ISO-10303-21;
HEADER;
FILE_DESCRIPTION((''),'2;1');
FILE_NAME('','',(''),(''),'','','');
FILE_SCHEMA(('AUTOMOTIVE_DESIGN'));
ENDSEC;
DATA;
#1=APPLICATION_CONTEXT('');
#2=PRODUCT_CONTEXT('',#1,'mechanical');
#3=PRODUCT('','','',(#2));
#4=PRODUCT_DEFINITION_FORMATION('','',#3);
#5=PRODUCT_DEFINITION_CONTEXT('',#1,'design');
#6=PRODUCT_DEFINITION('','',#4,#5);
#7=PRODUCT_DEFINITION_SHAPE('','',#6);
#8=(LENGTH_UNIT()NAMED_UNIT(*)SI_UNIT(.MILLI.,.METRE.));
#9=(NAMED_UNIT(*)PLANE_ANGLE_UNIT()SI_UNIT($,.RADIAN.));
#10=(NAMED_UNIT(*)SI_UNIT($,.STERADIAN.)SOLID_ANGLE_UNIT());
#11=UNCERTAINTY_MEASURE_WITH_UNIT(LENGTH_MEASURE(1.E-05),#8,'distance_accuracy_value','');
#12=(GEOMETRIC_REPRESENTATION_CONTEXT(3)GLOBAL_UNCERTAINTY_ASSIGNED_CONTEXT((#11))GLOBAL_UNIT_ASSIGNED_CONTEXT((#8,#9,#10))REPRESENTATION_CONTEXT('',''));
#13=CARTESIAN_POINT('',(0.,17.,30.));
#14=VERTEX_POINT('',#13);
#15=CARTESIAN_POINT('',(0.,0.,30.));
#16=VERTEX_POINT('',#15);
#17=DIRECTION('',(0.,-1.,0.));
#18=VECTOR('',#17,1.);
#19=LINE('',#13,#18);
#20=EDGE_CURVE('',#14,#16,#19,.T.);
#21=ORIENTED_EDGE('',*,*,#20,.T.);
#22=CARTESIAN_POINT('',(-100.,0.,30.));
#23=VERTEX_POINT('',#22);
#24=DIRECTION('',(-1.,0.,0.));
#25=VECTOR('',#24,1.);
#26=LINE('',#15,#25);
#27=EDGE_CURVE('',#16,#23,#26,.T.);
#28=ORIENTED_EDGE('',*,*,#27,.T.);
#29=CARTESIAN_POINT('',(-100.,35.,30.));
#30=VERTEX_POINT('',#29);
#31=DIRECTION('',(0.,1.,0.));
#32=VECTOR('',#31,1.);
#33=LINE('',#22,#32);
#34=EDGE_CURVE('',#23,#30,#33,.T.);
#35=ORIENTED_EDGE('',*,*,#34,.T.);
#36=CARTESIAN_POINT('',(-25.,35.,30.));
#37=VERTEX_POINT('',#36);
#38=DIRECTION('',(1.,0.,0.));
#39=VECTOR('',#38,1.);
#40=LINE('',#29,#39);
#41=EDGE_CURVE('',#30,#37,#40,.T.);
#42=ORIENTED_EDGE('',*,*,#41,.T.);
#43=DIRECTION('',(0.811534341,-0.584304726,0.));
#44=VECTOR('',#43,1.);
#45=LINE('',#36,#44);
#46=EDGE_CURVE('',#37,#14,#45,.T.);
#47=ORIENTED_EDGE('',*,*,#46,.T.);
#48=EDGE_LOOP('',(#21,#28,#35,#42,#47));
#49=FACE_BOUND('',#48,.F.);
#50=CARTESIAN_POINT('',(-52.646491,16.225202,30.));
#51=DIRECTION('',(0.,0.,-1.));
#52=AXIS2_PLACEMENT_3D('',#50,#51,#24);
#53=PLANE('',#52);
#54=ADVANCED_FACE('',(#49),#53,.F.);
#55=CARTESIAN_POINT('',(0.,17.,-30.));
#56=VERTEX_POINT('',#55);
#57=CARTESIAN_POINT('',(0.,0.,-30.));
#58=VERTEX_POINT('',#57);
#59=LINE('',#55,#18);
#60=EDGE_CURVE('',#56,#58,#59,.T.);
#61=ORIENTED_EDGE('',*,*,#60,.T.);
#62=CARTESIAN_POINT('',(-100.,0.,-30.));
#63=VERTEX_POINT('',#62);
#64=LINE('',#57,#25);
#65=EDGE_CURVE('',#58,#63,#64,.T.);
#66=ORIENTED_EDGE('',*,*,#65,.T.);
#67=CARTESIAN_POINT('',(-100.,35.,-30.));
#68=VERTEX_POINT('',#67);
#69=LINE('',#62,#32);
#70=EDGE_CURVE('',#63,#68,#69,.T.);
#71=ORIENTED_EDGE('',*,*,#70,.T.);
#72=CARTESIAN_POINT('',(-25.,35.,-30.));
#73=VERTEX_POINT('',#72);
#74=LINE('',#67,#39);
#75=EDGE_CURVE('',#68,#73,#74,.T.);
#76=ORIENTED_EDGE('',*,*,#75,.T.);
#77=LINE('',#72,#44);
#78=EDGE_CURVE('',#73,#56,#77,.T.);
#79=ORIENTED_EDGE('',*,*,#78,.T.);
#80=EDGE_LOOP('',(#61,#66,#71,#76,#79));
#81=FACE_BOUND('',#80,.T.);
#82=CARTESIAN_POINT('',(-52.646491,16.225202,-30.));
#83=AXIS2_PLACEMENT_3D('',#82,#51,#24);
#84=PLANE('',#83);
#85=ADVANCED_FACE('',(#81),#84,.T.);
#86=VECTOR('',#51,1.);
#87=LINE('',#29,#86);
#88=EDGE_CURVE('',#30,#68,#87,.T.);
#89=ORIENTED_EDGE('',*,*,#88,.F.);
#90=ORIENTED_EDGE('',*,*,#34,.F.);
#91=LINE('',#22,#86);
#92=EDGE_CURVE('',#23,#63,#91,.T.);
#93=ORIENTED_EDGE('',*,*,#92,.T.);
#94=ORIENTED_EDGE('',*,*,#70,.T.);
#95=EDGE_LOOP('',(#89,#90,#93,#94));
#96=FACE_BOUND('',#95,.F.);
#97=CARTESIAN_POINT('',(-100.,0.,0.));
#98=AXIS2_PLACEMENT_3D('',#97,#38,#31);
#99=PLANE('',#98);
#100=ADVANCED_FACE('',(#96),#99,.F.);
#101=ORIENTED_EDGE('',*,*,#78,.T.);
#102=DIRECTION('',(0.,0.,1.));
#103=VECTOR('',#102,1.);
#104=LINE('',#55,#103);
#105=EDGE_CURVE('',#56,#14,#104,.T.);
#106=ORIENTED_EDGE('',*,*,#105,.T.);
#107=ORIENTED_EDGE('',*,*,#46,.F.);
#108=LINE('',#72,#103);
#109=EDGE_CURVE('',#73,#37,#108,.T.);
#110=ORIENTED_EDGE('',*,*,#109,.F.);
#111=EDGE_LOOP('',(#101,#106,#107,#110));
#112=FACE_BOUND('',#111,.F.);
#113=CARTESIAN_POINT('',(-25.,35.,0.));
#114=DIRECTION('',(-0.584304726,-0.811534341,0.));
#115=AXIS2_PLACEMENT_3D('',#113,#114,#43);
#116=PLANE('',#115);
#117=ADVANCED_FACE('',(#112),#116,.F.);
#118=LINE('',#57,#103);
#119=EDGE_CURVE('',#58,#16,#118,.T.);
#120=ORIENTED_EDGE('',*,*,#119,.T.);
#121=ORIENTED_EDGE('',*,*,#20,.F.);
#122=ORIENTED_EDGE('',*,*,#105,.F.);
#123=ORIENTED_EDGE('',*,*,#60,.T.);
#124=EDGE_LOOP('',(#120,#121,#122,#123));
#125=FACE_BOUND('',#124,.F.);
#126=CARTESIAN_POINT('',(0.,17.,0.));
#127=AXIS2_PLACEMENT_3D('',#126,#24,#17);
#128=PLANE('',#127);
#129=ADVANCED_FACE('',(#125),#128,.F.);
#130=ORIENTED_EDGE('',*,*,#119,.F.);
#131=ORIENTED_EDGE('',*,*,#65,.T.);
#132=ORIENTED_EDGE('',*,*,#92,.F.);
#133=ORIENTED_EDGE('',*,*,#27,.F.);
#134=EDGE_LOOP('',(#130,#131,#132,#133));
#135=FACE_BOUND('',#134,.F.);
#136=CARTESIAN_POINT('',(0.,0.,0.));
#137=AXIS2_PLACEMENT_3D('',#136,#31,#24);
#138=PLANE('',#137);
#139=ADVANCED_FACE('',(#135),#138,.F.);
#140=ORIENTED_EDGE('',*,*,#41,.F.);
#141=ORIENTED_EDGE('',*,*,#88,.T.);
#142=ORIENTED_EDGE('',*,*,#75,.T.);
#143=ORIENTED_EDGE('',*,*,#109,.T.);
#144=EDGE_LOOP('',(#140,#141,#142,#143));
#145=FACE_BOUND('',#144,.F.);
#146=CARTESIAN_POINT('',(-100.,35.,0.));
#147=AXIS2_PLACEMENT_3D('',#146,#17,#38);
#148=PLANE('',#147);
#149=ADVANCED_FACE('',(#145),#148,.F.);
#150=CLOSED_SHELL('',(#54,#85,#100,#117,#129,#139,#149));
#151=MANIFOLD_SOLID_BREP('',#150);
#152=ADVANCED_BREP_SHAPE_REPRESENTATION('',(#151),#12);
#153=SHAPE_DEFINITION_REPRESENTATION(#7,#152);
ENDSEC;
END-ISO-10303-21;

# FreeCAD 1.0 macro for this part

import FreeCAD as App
import Part
import Sketcher

V = App.Vector


def add_polygon(sketch, points):
    """Adds a closed chain of lines whose ends are joined by coincident constraints."""
    first, n = sketch.GeometryCount, len(points)
    for a, b in zip(points, points[1:] + points[:1]):
        sketch.addGeometry(Part.LineSegment(App.Vector(*a, 0), App.Vector(*b, 0)), False)
    for i in range(n):
        sketch.addConstraint(Sketcher.Constraint("Coincident", first + i, 2, first + (i + 1) % n, 1))

doc = App.newDocument("Part")
body = doc.addObject("PartDesign::Body", "Body")

# Sketch on XY plane
sketch1 = body.newObject("Sketcher::SketchObject", "Sketch")
sketch1.AttachmentSupport = (doc.getObject("XY_Plane"), [""])
sketch1.MapMode = "FlatFace"
add_polygon(sketch1, [(-100, 0), (0, 0), (0, 17), (-25, 35), (-100, 35)])  # lines 0-4
sketch1.addConstraint([
    Sketcher.Constraint("Horizontal", 0),
    Sketcher.Constraint("Vertical", 1),
    Sketcher.Constraint("Horizontal", 3),
    Sketcher.Constraint("Vertical", 4),
    Sketcher.Constraint("Coincident", 0, 2, -1, 1),
    Sketcher.Constraint("DistanceX", 0, 1, 0, 2, 100.0),
    Sketcher.Constraint("DistanceX", 3, 2, 3, 1, 75.0),
    Sketcher.Constraint("DistanceY", 1, 1, 1, 2, 17.0),
    Sketcher.Constraint("DistanceY", 4, 2, 4, 1, 35.0),
])
pad1 = body.newObject("PartDesign::Pad", "Pad")
pad1.Profile = sketch1
pad1.Length = 60
pad1.Midplane = True

doc.recompute()
